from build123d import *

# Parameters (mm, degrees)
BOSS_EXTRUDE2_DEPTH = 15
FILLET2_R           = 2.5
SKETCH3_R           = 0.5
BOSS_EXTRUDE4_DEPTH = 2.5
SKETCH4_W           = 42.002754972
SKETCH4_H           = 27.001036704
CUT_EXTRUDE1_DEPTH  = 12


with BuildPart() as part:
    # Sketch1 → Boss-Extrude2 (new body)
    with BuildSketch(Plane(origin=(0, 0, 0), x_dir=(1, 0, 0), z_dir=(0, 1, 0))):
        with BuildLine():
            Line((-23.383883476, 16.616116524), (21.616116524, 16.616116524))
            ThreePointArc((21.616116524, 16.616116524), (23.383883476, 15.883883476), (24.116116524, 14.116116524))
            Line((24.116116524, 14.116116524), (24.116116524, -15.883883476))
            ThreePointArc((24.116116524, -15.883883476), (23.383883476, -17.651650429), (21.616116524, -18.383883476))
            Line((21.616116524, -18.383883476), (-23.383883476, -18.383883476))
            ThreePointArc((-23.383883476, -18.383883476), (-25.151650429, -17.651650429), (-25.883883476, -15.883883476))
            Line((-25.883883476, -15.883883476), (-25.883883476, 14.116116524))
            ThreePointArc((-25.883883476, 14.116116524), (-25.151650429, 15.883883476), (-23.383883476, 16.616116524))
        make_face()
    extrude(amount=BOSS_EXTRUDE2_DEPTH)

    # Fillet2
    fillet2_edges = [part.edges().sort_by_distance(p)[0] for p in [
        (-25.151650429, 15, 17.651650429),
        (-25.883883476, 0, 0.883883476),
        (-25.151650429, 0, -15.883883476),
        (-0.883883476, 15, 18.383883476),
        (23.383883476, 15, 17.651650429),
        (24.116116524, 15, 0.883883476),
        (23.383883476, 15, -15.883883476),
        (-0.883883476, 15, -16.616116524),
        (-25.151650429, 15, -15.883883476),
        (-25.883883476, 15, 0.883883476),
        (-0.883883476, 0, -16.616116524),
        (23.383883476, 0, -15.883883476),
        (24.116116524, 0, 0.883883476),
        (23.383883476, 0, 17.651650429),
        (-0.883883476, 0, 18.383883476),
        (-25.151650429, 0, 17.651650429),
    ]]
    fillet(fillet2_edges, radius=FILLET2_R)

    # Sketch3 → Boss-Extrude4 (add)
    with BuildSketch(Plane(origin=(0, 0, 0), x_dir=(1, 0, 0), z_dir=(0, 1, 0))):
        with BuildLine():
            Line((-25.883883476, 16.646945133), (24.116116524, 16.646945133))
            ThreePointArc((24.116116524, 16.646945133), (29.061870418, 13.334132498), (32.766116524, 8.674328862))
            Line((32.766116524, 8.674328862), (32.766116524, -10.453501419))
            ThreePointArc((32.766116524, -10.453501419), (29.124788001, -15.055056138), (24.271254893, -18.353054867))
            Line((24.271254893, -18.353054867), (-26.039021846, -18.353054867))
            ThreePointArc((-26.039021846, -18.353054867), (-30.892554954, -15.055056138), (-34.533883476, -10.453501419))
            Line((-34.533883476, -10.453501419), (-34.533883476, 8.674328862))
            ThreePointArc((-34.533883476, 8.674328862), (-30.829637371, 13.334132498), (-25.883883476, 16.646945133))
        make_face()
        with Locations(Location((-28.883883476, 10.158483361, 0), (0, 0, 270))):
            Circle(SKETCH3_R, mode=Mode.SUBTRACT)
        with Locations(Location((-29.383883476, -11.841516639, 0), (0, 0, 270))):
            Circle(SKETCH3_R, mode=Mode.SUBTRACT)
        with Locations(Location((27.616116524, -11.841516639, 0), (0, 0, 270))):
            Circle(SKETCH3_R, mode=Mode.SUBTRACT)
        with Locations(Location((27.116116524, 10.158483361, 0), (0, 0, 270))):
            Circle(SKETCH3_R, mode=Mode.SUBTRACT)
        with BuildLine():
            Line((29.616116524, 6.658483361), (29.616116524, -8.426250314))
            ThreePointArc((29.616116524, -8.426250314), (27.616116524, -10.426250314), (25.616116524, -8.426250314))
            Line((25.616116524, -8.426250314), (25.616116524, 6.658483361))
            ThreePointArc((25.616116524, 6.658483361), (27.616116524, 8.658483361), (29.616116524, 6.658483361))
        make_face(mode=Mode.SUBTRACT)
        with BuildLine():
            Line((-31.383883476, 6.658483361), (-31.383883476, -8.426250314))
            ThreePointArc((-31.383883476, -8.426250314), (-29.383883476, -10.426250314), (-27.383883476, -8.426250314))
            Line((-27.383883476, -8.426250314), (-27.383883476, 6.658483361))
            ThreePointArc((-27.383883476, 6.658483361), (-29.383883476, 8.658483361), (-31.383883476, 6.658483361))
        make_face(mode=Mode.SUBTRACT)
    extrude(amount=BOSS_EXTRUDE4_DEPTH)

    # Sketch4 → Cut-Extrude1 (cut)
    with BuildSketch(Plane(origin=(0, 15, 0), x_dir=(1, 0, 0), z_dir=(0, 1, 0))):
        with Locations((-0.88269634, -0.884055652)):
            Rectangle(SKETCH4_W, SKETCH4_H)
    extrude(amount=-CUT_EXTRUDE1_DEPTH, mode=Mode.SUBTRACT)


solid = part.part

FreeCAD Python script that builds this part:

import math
import FreeCAD as App
import Part
import Sketcher
Q = App.Units.Quantity


def edges_at(feature, points):
    """Names of the edges that pass closest to the given points."""
    edges = feature.Shape.Edges
    near = lambda p: min(range(len(edges)), key=lambda i: edges[i].distToShape(Part.Vertex(*p))[0])
    return sorted({f"Edge{near(p) + 1}" for p in points})

doc = App.newDocument("Part")
body = doc.addObject("PartDesign::Body", "Body")

# Sketch on XZ plane
sketch1 = body.newObject("Sketcher::SketchObject", "Sketch")
sketch1.AttachmentSupport = (doc.getObject("XZ_Plane"), [""])
sketch1.MapMode = "FlatFace"
sketch1.addGeometry(Part.LineSegment(App.Vector(21.6, -16.6, 0), App.Vector(-23.4, -16.6, 0)), False)
sketch1.addGeometry(Part.ArcOfCircle(Part.Circle(App.Vector(-23.4, -14.1, 0), App.Vector(0, 0, 1), 2.5), math.radians(-180), math.radians(-90)), False)
sketch1.addGeometry(Part.LineSegment(App.Vector(-25.9, -14.1, 0), App.Vector(-25.9, 15.9, 0)), False)
sketch1.addGeometry(Part.ArcOfCircle(Part.Circle(App.Vector(-23.4, 15.9, 0), App.Vector(0, 0, 1), 2.5), math.radians(90), math.radians(180)), False)
sketch1.addGeometry(Part.LineSegment(App.Vector(-23.4, 18.4, 0), App.Vector(21.6, 18.4, 0)), False)
sketch1.addGeometry(Part.ArcOfCircle(Part.Circle(App.Vector(21.6, 15.9, 0), App.Vector(0, 0, 1), 2.5), math.radians(0), math.radians(90)), False)
sketch1.addGeometry(Part.LineSegment(App.Vector(24.1, 15.9, 0), App.Vector(24.1, -14.1, 0)), False)
sketch1.addGeometry(Part.ArcOfCircle(Part.Circle(App.Vector(21.6, -14.1, 0), App.Vector(0, 0, 1), 2.5), math.radians(-90), math.radians(0)), False)
sketch1.addConstraint(Sketcher.Constraint("Tangent", 0, 2, 1, 2))
sketch1.addConstraint(Sketcher.Constraint("Tangent", 1, 1, 2, 1))
sketch1.addConstraint(Sketcher.Constraint("Tangent", 2, 2, 3, 2))
sketch1.addConstraint(Sketcher.Constraint("Tangent", 3, 1, 4, 1))
sketch1.addConstraint(Sketcher.Constraint("Tangent", 4, 2, 5, 2))
sketch1.addConstraint(Sketcher.Constraint("Tangent", 5, 1, 6, 1))
sketch1.addConstraint(Sketcher.Constraint("Tangent", 6, 2, 7, 2))
sketch1.addConstraint(Sketcher.Constraint("Tangent", 7, 1, 0, 1))
sketch1.addConstraint(Sketcher.Constraint("Horizontal", 0))
sketch1.addConstraint(Sketcher.Constraint("Vertical", 2))
sketch1.addConstraint(Sketcher.Constraint("Horizontal", 4))
sketch1.addConstraint(Sketcher.Constraint("Vertical", 6))
sketch1.addConstraint(Sketcher.Constraint("Equal", 1, 3))
sketch1.addConstraint(Sketcher.Constraint("Equal", 3, 5))
sketch1.addConstraint(Sketcher.Constraint("Equal", 5, 7))
sketch1.addConstraint(Sketcher.Constraint("Radius", 1, Q("2.5 mm")))
sketch1.addConstraint(Sketcher.Constraint("DistanceX", 0, 2, 0, 1, Q("45 mm")))
sketch1.addConstraint(Sketcher.Constraint("DistanceY", 2, 1, 2, 2, Q("30 mm")))
sketch1.addConstraint(Sketcher.Constraint("DistanceX", 1, 3, -1, 1, Q("23.383883 mm")))
sketch1.addConstraint(Sketcher.Constraint("DistanceY", 1, 3, -1, 1, Q("14.116117 mm")))
pad1 = body.newObject("PartDesign::Pad", "Pad")
pad1.Profile = sketch1
pad1.Length = 15
pad1.Reversed = True
doc.recompute()

fillet = body.newObject("PartDesign::Fillet", "Fillet")
fillet.Base = (pad1, edges_at(pad1, [
    (-25.152, 15, 17.652),
    (-25.884, 0, 0.884),
    (-25.152, 0, -15.884),
    (-0.884, 15, 18.384),
    (23.384, 15, 17.652),
    (24.116, 15, 0.884),
    (23.384, 15, -15.884),
    (-0.884, 15, -16.616),
    (-25.152, 15, -15.884),
    (-25.884, 15, 0.884),
    (-0.884, 0, -16.616),
    (23.384, 0, -15.884),
    (24.116, 0, 0.884),
    (23.384, 0, 17.652),
    (-0.884, 0, 18.384),
    (-25.152, 0, 17.652),
]))
fillet.Radius = 2.5

# Sketch on XZ plane
sketch2 = body.newObject("Sketcher::SketchObject", "Sketch001")
sketch2.AttachmentSupport = (doc.getObject("XZ_Plane"), [""])
sketch2.MapMode = "FlatFace"
sketch2.addGeometry(Part.LineSegment(App.Vector(24.1, -16.6, 0), App.Vector(-25.9, -16.6, 0)), False)
sketch2.addGeometry(Part.ArcOfCircle(Part.Circle(App.Vector(-17.7, 0.9, 0), App.Vector(0, 0, 1), 19.3), math.radians(-150), math.radians(-115)), False)
sketch2.addGeometry(Part.LineSegment(App.Vector(-34.5, -8.7, 0), App.Vector(-34.5, 10.5, 0)), False)
sketch2.addGeometry(Part.ArcOfCircle(Part.Circle(App.Vector(-17.7, 0.9, 0), App.Vector(0, 0, 1), 19.3), math.radians(115), math.radians(150)), False)
sketch2.addGeometry(Part.LineSegment(App.Vector(-26, 18.4, 0), App.Vector(24.3, 18.4, 0)), False)
sketch2.addGeometry(Part.ArcOfCircle(Part.Circle(App.Vector(16, 0.9, 0), App.Vector(0, 0, 1), 19.3), math.radians(30), math.radians(65)), False)
sketch2.addGeometry(Part.LineSegment(App.Vector(32.8, 10.5, 0), App.Vector(32.8, -8.7, 0)), False)
sketch2.addGeometry(Part.ArcOfCircle(Part.Circle(App.Vector(16, 0.9, 0), App.Vector(0, 0, 1), 19.3), math.radians(-65), math.radians(-30)), False)
sketch2.addGeometry(Part.Circle(App.Vector(27.6, 11.8, 0), App.Vector(0, 0, 1), 0.5), False)
sketch2.addGeometry(Part.LineSegment(App.Vector(29.6, -6.7, 0), App.Vector(29.6, 8.4, 0)), False)
sketch2.addGeometry(Part.ArcOfCircle(Part.Circle(App.Vector(27.6, 8.4, 0), App.Vector(0, 0, 1), 2), math.radians(0), math.radians(180)), False)
sketch2.addGeometry(Part.LineSegment(App.Vector(25.6, 8.4, 0), App.Vector(25.6, -6.7, 0)), False)
sketch2.addGeometry(Part.ArcOfCircle(Part.Circle(App.Vector(27.6, -6.7, 0), App.Vector(0, 0, 1), 2), math.radians(180), math.radians(360)), False)
sketch2.addGeometry(Part.Circle(App.Vector(-29.4, 11.8, 0), App.Vector(0, 0, 1), 0.5), False)
sketch2.addGeometry(Part.ArcOfCircle(Part.Circle(App.Vector(-29.4, -6.7, 0), App.Vector(0, 0, 1), 2), math.radians(180), math.radians(360)), False)
sketch2.addGeometry(Part.LineSegment(App.Vector(-27.4, -6.7, 0), App.Vector(-27.4, 8.4, 0)), False)
sketch2.addGeometry(Part.ArcOfCircle(Part.Circle(App.Vector(-29.4, 8.4, 0), App.Vector(0, 0, 1), 2), math.radians(0), math.radians(180)), False)
sketch2.addGeometry(Part.LineSegment(App.Vector(-31.4, 8.4, 0), App.Vector(-31.4, -6.7, 0)), False)
sketch2.addGeometry(Part.Circle(App.Vector(27.1, -10.2, 0), App.Vector(0, 0, 1), 0.5), False)
sketch2.addGeometry(Part.Circle(App.Vector(-28.9, -10.2, 0), App.Vector(0, 0, 1), 0.5), False)
sketch2.addConstraint(Sketcher.Constraint("Coincident", 0, 2, 1, 2))
sketch2.addConstraint(Sketcher.Constraint("Coincident", 1, 1, 2, 1))
sketch2.addConstraint(Sketcher.Constraint("Coincident", 2, 2, 3, 2))
sketch2.addConstraint(Sketcher.Constraint("Coincident", 3, 1, 4, 1))
sketch2.addConstraint(Sketcher.Constraint("Coincident", 4, 2, 5, 2))
sketch2.addConstraint(Sketcher.Constraint("Coincident", 5, 1, 6, 1))
sketch2.addConstraint(Sketcher.Constraint("Coincident", 6, 2, 7, 2))
sketch2.addConstraint(Sketcher.Constraint("Coincident", 7, 1, 0, 1))
sketch2.addConstraint(Sketcher.Constraint("Tangent", 9, 2, 10, 1))
sketch2.addConstraint(Sketcher.Constraint("Tangent", 10, 2, 11, 1))
sketch2.addConstraint(Sketcher.Constraint("Tangent", 11, 2, 12, 1))
sketch2.addConstraint(Sketcher.Constraint("Tangent", 12, 2, 9, 1))
sketch2.addConstraint(Sketcher.Constraint("Tangent", 14, 2, 15, 1))
sketch2.addConstraint(Sketcher.Constraint("Tangent", 15, 2, 16, 1))
sketch2.addConstraint(Sketcher.Constraint("Tangent", 16, 2, 17, 1))
sketch2.addConstraint(Sketcher.Constraint("Tangent", 17, 2, 14, 1))
sketch2.addConstraint(Sketcher.Constraint("Horizontal", 0))
sketch2.addConstraint(Sketcher.Constraint("Vertical", 2))
sketch2.addConstraint(Sketcher.Constraint("Horizontal", 4))
sketch2.addConstraint(Sketcher.Constraint("Vertical", 6))
sketch2.addConstraint(Sketcher.Constraint("Vertical", 9))
sketch2.addConstraint(Sketcher.Constraint("Vertical", 11))
sketch2.addConstraint(Sketcher.Constraint("Vertical", 15))
sketch2.addConstraint(Sketcher.Constraint("Vertical", 17))
sketch2.addConstraint(Sketcher.Constraint("Coincident", 3, 3, 1, 3))
sketch2.addConstraint(Sketcher.Constraint("Coincident", 7, 3, 5, 3))
sketch2.addConstraint(Sketcher.Constraint("Equal", 1, 3))
sketch2.addConstraint(Sketcher.Constraint("Equal", 3, 5))
sketch2.addConstraint(Sketcher.Constraint("Equal", 5, 7))
sketch2.addConstraint(Sketcher.Constraint("Equal", 8, 13))
sketch2.addConstraint(Sketcher.Constraint("Equal", 12, 14))
sketch2.addConstraint(Sketcher.Constraint("Equal", 13, 18))
sketch2.addConstraint(Sketcher.Constraint("Equal", 18, 19))
sketch2.addConstraint(Sketcher.Constraint("Horizontal", 3, 3, 5, 3))
sketch2.addConstraint(Sketcher.Constraint("Horizontal", 8, 3, 13, 3))
sketch2.addConstraint(Sketcher.Constraint("Horizontal", 12, 3, 14, 3))
sketch2.addConstraint(Sketcher.Constraint("Horizontal", 10, 3, 16, 3))
sketch2.addConstraint(Sketcher.Constraint("Horizontal", 18, 3, 19, 3))
sketch2.addConstraint(Sketcher.Constraint("Horizontal", 2, 2, 5, 1))
sketch2.addConstraint(Sketcher.Constraint("Vertical", 8, 3, 10, 3))
sketch2.addConstraint(Sketcher.Constraint("Vertical", 13, 3, 14, 3))
sketch2.addConstraint(Sketcher.Constraint("Diameter", 8, Q("1 mm")))
sketch2.addConstraint(Sketcher.Constraint("Radius", 10, Q("2 mm")))
sketch2.addConstraint(Sketcher.Constraint("DistanceX", 0, 2, 0, 1, Q("50 mm")))
sketch2.addConstraint(Sketcher.Constraint("DistanceX", 13, 3, 8, 3, Q("57 mm")))
sketch2.addConstraint(Sketcher.Constraint("DistanceY", 18, 3, 8, 3, Q("22 mm")))
sketch2.addConstraint(Sketcher.Constraint("DistanceX", 19, 3, 0, 2, Q("3 mm")))
sketch2.addConstraint(Sketcher.Constraint("DistanceX", 7, 1, 18, 3, Q("3 mm")))
sketch2.addConstraint(Sketcher.Constraint("DistanceY", 12, 3, 8, 3, Q("18.5 mm")))
sketch2.addConstraint(Sketcher.Constraint("DistanceX", 18, 3, 12, 3, Q("0.5 mm")))
sketch2.addConstraint(Sketcher.Constraint("DistanceX", 1, 1, 14, 3, Q("5.15 mm")))
sketch2.addConstraint(Sketcher.Constraint("Radius", 1, Q("19.343797 mm")))
sketch2.addConstraint(Sketcher.Constraint("DistanceY", 2, 1, 2, 2, Q("19.12783 mm")))
sketch2.addConstraint(Sketcher.Constraint("DistanceY", -1, 1, 2, 2, Q("10.453501 mm")))
sketch2.addConstraint(Sketcher.Constraint("DistanceX", 4, 1, 4, 2, Q("50.310277 mm")))
sketch2.addConstraint(Sketcher.Constraint("DistanceY", 9, 1, 9, 2, Q("15.084734 mm")))
sketch2.addConstraint(Sketcher.Constraint("DistanceX", 1, 3, -1, 1, Q("17.719782 mm")))
sketch2.addConstraint(Sketcher.Constraint("DistanceY", -1, 1, 10, 3, Q("8.42625 mm")))
pad2 = body.newObject("PartDesign::Pad", "Pad001")
pad2.Profile = sketch2
pad2.Length = 2.5
pad2.Reversed = True

# Sketch on XZ plane
sketch3 = body.newObject("Sketcher::SketchObject", "Sketch002")
sketch3.AttachmentSupport = (doc.getObject("XZ_Plane"), [""])
sketch3.MapMode = "FlatFace"
sketch3.AttachmentOffset = App.Placement(App.Vector(0, 0, -15), App.Rotation())
sketch3.addGeometry(Part.LineSegment(App.Vector(-22, -13, 0), App.Vector(-22, 14, 0)), False)
sketch3.addGeometry(Part.LineSegment(App.Vector(-22, 14, 0), App.Vector(20, 14, 0)), False)
sketch3.addGeometry(Part.LineSegment(App.Vector(20, 14, 0), App.Vector(20, -13, 0)), False)
sketch3.addGeometry(Part.LineSegment(App.Vector(20, -13, 0), App.Vector(-22, -13, 0)), False)
sketch3.addConstraint(Sketcher.Constraint("Coincident", 0, 2, 1, 1))
sketch3.addConstraint(Sketcher.Constraint("Coincident", 1, 2, 2, 1))
sketch3.addConstraint(Sketcher.Constraint("Coincident", 2, 2, 3, 1))
sketch3.addConstraint(Sketcher.Constraint("Coincident", 3, 2, 0, 1))
sketch3.addConstraint(Sketcher.Constraint("Vertical", 0))
sketch3.addConstraint(Sketcher.Constraint("Horizontal", 1))
sketch3.addConstraint(Sketcher.Constraint("Vertical", 2))
sketch3.addConstraint(Sketcher.Constraint("Horizontal", 3))
sketch3.addConstraint(Sketcher.Constraint("DistanceX", 1, 1, 1, 2, Q("42.002755 mm")))
sketch3.addConstraint(Sketcher.Constraint("DistanceY", 0, 1, 0, 2, Q("27.001037 mm")))
sketch3.addConstraint(Sketcher.Constraint("DistanceX", -1, 1, 1, 2, Q("20.118681 mm")))
sketch3.addConstraint(Sketcher.Constraint("DistanceY", -1, 1, 0, 2, Q("14.384574 mm")))
pocket1 = body.newObject("PartDesign::Pocket", "Pocket")
pocket1.Profile = sketch3
pocket1.Length = 12
pocket1.Reversed = True

doc.recompute()
